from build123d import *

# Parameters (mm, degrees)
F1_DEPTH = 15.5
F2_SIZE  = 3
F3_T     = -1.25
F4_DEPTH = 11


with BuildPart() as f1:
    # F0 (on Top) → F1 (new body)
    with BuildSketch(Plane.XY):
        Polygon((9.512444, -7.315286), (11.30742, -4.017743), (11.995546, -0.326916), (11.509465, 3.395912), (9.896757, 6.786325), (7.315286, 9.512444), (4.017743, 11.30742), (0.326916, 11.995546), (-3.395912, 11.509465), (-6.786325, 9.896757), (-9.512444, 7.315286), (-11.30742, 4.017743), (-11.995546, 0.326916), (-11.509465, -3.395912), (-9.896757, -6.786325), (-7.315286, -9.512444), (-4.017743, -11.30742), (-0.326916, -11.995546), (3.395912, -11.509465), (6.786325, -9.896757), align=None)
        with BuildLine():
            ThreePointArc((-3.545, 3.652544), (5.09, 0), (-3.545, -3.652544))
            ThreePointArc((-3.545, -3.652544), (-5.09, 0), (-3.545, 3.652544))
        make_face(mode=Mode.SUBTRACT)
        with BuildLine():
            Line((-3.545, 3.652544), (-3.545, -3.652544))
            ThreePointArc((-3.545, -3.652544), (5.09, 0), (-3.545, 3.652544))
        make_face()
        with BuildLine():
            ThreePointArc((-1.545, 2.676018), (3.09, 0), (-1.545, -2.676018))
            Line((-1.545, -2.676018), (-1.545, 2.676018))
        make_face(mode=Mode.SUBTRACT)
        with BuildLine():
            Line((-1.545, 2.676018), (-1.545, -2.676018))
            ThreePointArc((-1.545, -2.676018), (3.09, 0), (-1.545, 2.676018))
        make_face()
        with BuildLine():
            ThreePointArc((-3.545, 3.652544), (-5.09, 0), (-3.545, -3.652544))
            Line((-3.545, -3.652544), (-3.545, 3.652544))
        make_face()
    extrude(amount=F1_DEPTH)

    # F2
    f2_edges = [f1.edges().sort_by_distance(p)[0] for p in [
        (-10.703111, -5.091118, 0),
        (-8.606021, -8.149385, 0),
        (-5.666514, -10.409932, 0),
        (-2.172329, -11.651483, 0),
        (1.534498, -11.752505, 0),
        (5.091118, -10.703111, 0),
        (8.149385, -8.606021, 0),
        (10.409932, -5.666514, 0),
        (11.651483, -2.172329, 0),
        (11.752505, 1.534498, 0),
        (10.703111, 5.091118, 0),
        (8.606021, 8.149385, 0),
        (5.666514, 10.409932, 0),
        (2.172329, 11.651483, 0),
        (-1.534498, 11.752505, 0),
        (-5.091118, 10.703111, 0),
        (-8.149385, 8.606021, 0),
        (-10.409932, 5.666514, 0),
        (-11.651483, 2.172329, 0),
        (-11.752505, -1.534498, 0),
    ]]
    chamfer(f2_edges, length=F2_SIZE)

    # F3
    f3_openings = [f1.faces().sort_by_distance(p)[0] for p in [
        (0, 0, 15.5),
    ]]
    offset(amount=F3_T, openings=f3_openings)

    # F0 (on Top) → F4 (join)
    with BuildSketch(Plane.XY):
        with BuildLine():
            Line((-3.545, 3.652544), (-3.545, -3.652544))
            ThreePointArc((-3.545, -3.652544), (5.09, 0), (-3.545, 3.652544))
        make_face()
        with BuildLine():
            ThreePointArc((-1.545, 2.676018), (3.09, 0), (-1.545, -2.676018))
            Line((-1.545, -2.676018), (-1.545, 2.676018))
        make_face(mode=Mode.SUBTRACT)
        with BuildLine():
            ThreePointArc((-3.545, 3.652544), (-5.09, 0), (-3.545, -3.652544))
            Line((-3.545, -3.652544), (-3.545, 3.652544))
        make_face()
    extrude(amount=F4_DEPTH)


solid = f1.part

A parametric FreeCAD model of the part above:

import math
import FreeCAD as App
import Part
import Sketcher


def edges_at(feature, points):
    """Names of the edges that pass closest to the given points."""
    edges = feature.Shape.Edges
    near = lambda p: min(range(len(edges)), key=lambda i: edges[i].distToShape(Part.Vertex(*p))[0])
    return sorted({f"Edge{near(p) + 1}" for p in points})


def faces_at(feature, points):
    """Names of the faces that lie closest to the given points."""
    faces = feature.Shape.Faces
    near = lambda p: min(range(len(faces)), key=lambda i: faces[i].distToShape(Part.Vertex(*p))[0])
    return sorted({f"Face{near(p) + 1}" for p in points})

doc = App.newDocument("Part")
body = doc.addObject("PartDesign::Body", "Body")

# Sketch on XY plane
sketch1 = body.newObject("Sketcher::SketchObject", "Sketch")
sketch1.AttachmentSupport = (doc.getObject("XY_Plane"), [""])
sketch1.MapMode = "FlatFace"
sketch1.addGeometry([
    Part.LineSegment(App.Vector(9.512444, -7.315286, 0), App.Vector(11.30742, -4.017743, 0)),  # 0
    Part.LineSegment(App.Vector(11.30742, -4.017743, 0), App.Vector(11.995546, -0.326916, 0)),  # 1
    Part.LineSegment(App.Vector(11.995546, -0.326916, 0), App.Vector(11.509465, 3.395912, 0)),  # 2
    Part.LineSegment(App.Vector(11.509465, 3.395912, 0), App.Vector(9.896757, 6.786325, 0)),  # 3
    Part.LineSegment(App.Vector(9.896757, 6.786325, 0), App.Vector(7.315286, 9.512444, 0)),  # 4
    Part.LineSegment(App.Vector(7.315286, 9.512444, 0), App.Vector(4.017743, 11.30742, 0)),  # 5
    Part.LineSegment(App.Vector(4.017743, 11.30742, 0), App.Vector(0.326916, 11.995546, 0)),  # 6
    Part.LineSegment(App.Vector(0.326916, 11.995546, 0), App.Vector(-3.395912, 11.509465, 0)),  # 7
    Part.LineSegment(App.Vector(-3.395912, 11.509465, 0), App.Vector(-6.786325, 9.896757, 0)),  # 8
    Part.LineSegment(App.Vector(-6.786325, 9.896757, 0), App.Vector(-9.512444, 7.315286, 0)),  # 9
    Part.LineSegment(App.Vector(-9.512444, 7.315286, 0), App.Vector(-11.30742, 4.017743, 0)),  # 10
    Part.LineSegment(App.Vector(-11.30742, 4.017743, 0), App.Vector(-11.995546, 0.326916, 0)),  # 11
    Part.LineSegment(App.Vector(-11.995546, 0.326916, 0), App.Vector(-11.509465, -3.395912, 0)),  # 12
    Part.LineSegment(App.Vector(-11.509465, -3.395912, 0), App.Vector(-9.896757, -6.786325, 0)),  # 13
    Part.LineSegment(App.Vector(-9.896757, -6.786325, 0), App.Vector(-7.315286, -9.512444, 0)),  # 14
    Part.LineSegment(App.Vector(-7.315286, -9.512444, 0), App.Vector(-4.017743, -11.30742, 0)),  # 15
    Part.LineSegment(App.Vector(-4.017743, -11.30742, 0), App.Vector(-0.326916, -11.995546, 0)),  # 16
    Part.LineSegment(App.Vector(-0.326916, -11.995546, 0), App.Vector(3.395912, -11.509465, 0)),  # 17
    Part.LineSegment(App.Vector(3.395912, -11.509465, 0), App.Vector(6.786325, -9.896757, 0)),  # 18
    Part.LineSegment(App.Vector(6.786325, -9.896757, 0), App.Vector(9.512444, -7.315286, 0)),  # 19
], False)
sketch1.addConstraint([
    Sketcher.Constraint("Coincident", 0, 2, 1, 1),
    Sketcher.Constraint("Coincident", 1, 2, 2, 1),
    Sketcher.Constraint("Coincident", 2, 2, 3, 1),
    Sketcher.Constraint("Coincident", 3, 2, 4, 1),
    Sketcher.Constraint("Coincident", 4, 2, 5, 1),
    Sketcher.Constraint("Coincident", 5, 2, 6, 1),
    Sketcher.Constraint("Coincident", 6, 2, 7, 1),
    Sketcher.Constraint("Coincident", 7, 2, 8, 1),
    Sketcher.Constraint("Coincident", 8, 2, 9, 1),
    Sketcher.Constraint("Coincident", 9, 2, 10, 1),
    Sketcher.Constraint("Coincident", 10, 2, 11, 1),
    Sketcher.Constraint("Coincident", 11, 2, 12, 1),
    Sketcher.Constraint("Coincident", 12, 2, 13, 1),
    Sketcher.Constraint("Coincident", 13, 2, 14, 1),
    Sketcher.Constraint("Coincident", 14, 2, 15, 1),
    Sketcher.Constraint("Coincident", 15, 2, 16, 1),
    Sketcher.Constraint("Coincident", 16, 2, 17, 1),
    Sketcher.Constraint("Coincident", 17, 2, 18, 1),
    Sketcher.Constraint("Coincident", 18, 2, 19, 1),
    Sketcher.Constraint("Coincident", 19, 2, 0, 1),
    Sketcher.Constraint("Symmetric", 0, 2, 10, 2, -1, 1),
    Sketcher.Constraint("Symmetric", 1, 2, 11, 2, -1, 1),
    Sketcher.Constraint("Symmetric", 2, 2, 12, 2, -1, 1),
    Sketcher.Constraint("Symmetric", 3, 2, 13, 2, -1, 1),
    Sketcher.Constraint("Symmetric", 4, 2, 14, 2, -1, 1),
    Sketcher.Constraint("Symmetric", 5, 2, 15, 2, -1, 1),
    Sketcher.Constraint("Symmetric", 6, 2, 16, 2, -1, 1),
    Sketcher.Constraint("Symmetric", 7, 2, 17, 2, -1, 1),
    Sketcher.Constraint("Symmetric", 8, 2, 18, 2, -1, 1),
    Sketcher.Constraint("Symmetric", 9, 2, 19, 2, -1, 1),
    Sketcher.Constraint("Perpendicular", 0, 5),
    Sketcher.Constraint("Perpendicular", 1, 6),
    Sketcher.Constraint("Perpendicular", 2, 7),
    Sketcher.Constraint("Perpendicular", 3, 8),
    Sketcher.Constraint("Perpendicular", 4, 9),
    Sketcher.Constraint("Equal", 0, 1),
    Sketcher.Constraint("Equal", 1, 2),
    Sketcher.Constraint("Equal", 2, 3),
    Sketcher.Constraint("Equal", 3, 4),
    Sketcher.Constraint("Equal", 4, 5),
    Sketcher.Constraint("Equal", 5, 6),
    Sketcher.Constraint("Equal", 6, 7),
    Sketcher.Constraint("Equal", 7, 8),
    Sketcher.Constraint("Equal", 8, 9),
    Sketcher.Constraint("DistanceY", 4, 2, 6, 2, 2.483102),
    Sketcher.Constraint("DistanceX", -1, 1, 0, 2, 11.30742),
    Sketcher.Constraint("DistanceY", -1, 1, 2, 2, 3.395912),
    Sketcher.Constraint("DistanceX", 2, 2, 1, 2, 0.486081),
    Sketcher.Constraint("DistanceX", 3, 2, 2, 2, 1.612708),
    Sketcher.Constraint("DistanceY", 1, 2, 3, 2, 7.113241),
])
pad1 = body.newObject("PartDesign::Pad", "Pad")
pad1.Profile = sketch1
pad1.Length = 15.5
doc.recompute()

chamfer = body.newObject("PartDesign::Chamfer", "Chamfer")
chamfer.Base = (pad1, edges_at(pad1, [
    (-10.703, -5.091, 0),
    (-8.606, -8.149, 0),
    (-5.667, -10.41, 0),
    (-2.172, -11.651, 0),
    (1.534, -11.753, 0),
    (5.091, -10.703, 0),
    (8.149, -8.606, 0),
    (10.41, -5.667, 0),
    (11.651, -2.172, 0),
    (11.753, 1.534, 0),
    (10.703, 5.091, 0),
    (8.606, 8.149, 0),
    (5.667, 10.41, 0),
    (2.172, 11.651, 0),
    (-1.534, 11.753, 0),
    (-5.091, 10.703, 0),
    (-8.149, 8.606, 0),
    (-10.41, 5.667, 0),
    (-11.651, 2.172, 0),
    (-11.753, -1.534, 0),
]))
chamfer.Size = 3
doc.recompute()

thickness = body.newObject("PartDesign::Thickness", "Thickness")
thickness.Base = (chamfer, faces_at(chamfer, [(0, 0, 15.5)]))
thickness.Value = 1.25
thickness.Reversed = True
thickness.Join = "Arc"

# Sketch on XY plane
sketch2 = body.newObject("Sketcher::SketchObject", "Sketch001")
sketch2.AttachmentSupport = (doc.getObject("XY_Plane"), [""])
sketch2.MapMode = "FlatFace"
sketch2.addGeometry([
    Part.ArcOfCircle(Part.Circle(App.Vector(0, 0, 0), App.Vector(0, 0, 1), 5.09), math.radians(-134.143962), math.radians(134.143962)),
    Part.ArcOfCircle(Part.Circle(App.Vector(0.000001, 0, 0), App.Vector(0, 0, 1), 5.090001), math.radians(134.143971), math.radians(225.856029)),
    Part.LineSegment(App.Vector(-1.545, -2.676018, 0), App.Vector(-1.545, 2.676018, 0)),
    Part.ArcOfCircle(Part.Circle(App.Vector(0, 0, 0), App.Vector(0, 0, 1), 3.09), math.radians(-120.000009), math.radians(120.000009)),
], False)
sketch2.addConstraint([
    Sketcher.Constraint("Tangent", 0, 1, 1, 2),
    Sketcher.Constraint("Coincident", 1, 1, 0, 2),
    Sketcher.Constraint("Coincident", 2, 1, 3, 1),
    Sketcher.Constraint("Coincident", 3, 2, 2, 2),
    Sketcher.Constraint("Vertical", 2),
    Sketcher.Constraint("Coincident", 0, 3, -1, 1),
    Sketcher.Constraint("Coincident", 3, 3, -1, 1),
    Sketcher.Constraint("Vertical", 0, 1, 1, 1),
    Sketcher.Constraint("Radius", 0, 5.09),
    Sketcher.Constraint("Radius", 3, 3.09),
    Sketcher.Constraint("DistanceX", 0, 1, 2, 1, 2.0),
    Sketcher.Constraint("DistanceX", 0, 1, -1, 1, 3.545),
])
pad2 = body.newObject("PartDesign::Pad", "Pad001")
pad2.Profile = sketch2
pad2.Length = 11

doc.recompute()
